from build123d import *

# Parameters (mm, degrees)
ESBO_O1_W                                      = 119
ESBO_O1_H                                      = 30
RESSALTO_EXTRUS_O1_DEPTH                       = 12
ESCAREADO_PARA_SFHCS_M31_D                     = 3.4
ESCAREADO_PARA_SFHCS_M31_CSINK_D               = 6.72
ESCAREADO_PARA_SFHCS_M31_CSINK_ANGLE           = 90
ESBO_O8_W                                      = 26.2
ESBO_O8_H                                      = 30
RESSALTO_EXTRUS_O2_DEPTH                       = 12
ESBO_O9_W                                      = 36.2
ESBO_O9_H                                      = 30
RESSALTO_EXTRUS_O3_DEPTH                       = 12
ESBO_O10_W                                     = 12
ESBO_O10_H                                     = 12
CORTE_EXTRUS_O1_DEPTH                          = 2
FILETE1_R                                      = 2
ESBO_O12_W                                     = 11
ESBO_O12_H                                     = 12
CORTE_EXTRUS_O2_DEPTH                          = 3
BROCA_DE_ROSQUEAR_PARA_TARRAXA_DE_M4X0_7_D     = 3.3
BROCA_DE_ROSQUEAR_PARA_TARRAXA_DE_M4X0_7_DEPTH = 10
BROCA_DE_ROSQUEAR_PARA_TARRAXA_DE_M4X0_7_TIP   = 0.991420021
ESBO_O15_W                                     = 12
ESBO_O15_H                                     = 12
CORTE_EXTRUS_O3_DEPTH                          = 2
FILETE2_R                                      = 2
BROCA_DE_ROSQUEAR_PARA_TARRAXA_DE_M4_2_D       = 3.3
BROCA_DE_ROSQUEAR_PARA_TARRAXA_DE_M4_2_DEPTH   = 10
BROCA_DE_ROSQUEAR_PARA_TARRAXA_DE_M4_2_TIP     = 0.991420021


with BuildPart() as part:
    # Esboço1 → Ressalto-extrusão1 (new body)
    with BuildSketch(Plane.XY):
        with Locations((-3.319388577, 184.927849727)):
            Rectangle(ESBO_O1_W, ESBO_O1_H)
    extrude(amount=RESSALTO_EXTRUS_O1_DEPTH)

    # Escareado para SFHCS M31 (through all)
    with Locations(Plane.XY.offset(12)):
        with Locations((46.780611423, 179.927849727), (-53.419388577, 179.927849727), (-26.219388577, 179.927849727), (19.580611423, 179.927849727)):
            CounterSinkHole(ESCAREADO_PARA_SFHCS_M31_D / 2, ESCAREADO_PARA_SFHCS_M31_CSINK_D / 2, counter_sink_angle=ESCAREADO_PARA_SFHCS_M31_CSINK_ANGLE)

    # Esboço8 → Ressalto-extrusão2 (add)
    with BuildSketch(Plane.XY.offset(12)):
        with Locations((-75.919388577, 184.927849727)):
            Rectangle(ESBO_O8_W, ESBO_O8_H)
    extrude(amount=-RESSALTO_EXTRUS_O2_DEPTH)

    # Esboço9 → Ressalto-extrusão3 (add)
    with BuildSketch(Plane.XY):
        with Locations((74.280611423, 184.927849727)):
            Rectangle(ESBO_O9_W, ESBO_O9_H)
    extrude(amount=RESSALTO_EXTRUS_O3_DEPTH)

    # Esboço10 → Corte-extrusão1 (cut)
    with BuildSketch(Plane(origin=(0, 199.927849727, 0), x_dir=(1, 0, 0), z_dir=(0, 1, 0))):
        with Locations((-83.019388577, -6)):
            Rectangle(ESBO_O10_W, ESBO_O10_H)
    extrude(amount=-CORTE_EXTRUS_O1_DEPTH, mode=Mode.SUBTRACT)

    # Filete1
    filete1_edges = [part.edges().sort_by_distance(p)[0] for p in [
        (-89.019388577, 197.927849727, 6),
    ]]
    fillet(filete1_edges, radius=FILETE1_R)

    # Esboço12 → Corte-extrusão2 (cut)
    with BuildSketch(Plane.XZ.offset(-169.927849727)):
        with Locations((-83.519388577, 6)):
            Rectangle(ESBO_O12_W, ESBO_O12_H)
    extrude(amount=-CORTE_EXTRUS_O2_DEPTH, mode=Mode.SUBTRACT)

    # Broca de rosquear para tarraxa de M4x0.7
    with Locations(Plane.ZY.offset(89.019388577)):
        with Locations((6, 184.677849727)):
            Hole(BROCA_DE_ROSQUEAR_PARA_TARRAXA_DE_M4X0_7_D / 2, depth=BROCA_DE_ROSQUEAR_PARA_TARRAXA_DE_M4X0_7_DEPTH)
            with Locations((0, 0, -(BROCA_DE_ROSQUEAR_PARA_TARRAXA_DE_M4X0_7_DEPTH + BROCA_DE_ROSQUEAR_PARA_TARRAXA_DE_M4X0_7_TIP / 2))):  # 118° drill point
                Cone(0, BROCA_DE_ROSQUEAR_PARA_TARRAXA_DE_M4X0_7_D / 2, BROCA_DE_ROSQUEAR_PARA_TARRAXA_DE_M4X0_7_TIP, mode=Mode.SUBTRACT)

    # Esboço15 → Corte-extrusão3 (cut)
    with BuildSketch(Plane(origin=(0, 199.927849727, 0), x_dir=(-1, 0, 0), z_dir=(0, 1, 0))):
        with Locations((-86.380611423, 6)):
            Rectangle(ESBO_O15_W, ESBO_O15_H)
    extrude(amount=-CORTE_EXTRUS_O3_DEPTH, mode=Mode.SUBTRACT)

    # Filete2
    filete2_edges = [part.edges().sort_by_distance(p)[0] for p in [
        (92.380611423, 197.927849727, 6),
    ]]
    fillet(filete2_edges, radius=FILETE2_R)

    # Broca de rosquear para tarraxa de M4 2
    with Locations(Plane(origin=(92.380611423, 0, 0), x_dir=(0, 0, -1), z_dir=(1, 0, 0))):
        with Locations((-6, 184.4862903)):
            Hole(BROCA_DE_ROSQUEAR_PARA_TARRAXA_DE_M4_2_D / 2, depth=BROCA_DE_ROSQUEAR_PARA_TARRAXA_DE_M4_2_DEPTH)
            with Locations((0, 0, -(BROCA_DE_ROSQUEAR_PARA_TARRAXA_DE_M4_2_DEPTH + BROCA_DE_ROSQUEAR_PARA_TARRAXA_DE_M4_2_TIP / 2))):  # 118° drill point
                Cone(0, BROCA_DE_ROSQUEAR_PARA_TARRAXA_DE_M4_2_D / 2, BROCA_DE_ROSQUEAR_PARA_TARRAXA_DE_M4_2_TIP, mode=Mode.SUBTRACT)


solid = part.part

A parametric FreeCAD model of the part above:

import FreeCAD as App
import Part
import Sketcher

V = App.Vector
Q = App.Units.Quantity


def edges_at(feature, points):
    """Names of the edges that pass closest to the given points."""
    edges = feature.Shape.Edges
    near = lambda p: min(range(len(edges)), key=lambda i: edges[i].distToShape(Part.Vertex(*p))[0])
    return sorted({f"Edge{near(p) + 1}" for p in points})

doc = App.newDocument("Part")
body = doc.addObject("PartDesign::Body", "Body")

sketch1 = doc.addObject("Sketcher::SketchObject", "Sketch")
body.addObject(sketch1)
sketch1.AttachmentSupport = (doc.XY_Plane, [""])
sketch1.MapMode = "FlatFace"
sketch1.addGeometry(Part.LineSegment(V(-62.819389, 199.92785, 0), V(-62.819389, 169.92785, 0)), False)
sketch1.addGeometry(Part.LineSegment(V(-62.819389, 169.92785, 0), V(56.180611, 169.92785, 0)), False)
sketch1.addGeometry(Part.LineSegment(V(56.180611, 169.92785, 0), V(56.180611, 199.92785, 0)), False)
sketch1.addGeometry(Part.LineSegment(V(56.180611, 199.92785, 0), V(-62.819389, 199.92785, 0)), False)
sketch1.addConstraint(Sketcher.Constraint("Coincident", 0, 2, 1, 1))
sketch1.addConstraint(Sketcher.Constraint("Coincident", 1, 2, 2, 1))
sketch1.addConstraint(Sketcher.Constraint("Coincident", 2, 2, 3, 1))
sketch1.addConstraint(Sketcher.Constraint("Coincident", 3, 2, 0, 1))
sketch1.addConstraint(Sketcher.Constraint("Vertical", 0))
sketch1.addConstraint(Sketcher.Constraint("Horizontal", 1))
sketch1.addConstraint(Sketcher.Constraint("Vertical", 2))
sketch1.addConstraint(Sketcher.Constraint("Horizontal", 3))
sketch1.addConstraint(Sketcher.Constraint("DistanceX", 1, 1, 1, 2, Q("119 mm")))
sketch1.addConstraint(Sketcher.Constraint("DistanceY", 0, 2, 0, 1, Q("30 mm")))
sketch1.addConstraint(Sketcher.Constraint("DistanceX", 0, 2, -1, 1, Q("62.819389 mm")))
sketch1.addConstraint(Sketcher.Constraint("DistanceY", -1, 1, 0, 2, Q("169.92785 mm")))
pad1 = doc.addObject("PartDesign::Pad", "Pad")
body.addObject(pad1)
pad1.Profile = sketch1
pad1.Length = 12

sketch2 = doc.addObject("Sketcher::SketchObject", "Sketch001")
body.addObject(sketch2)
sketch2.AttachmentSupport = (doc.XY_Plane, [""])
sketch2.MapMode = "FlatFace"
sketch2.AttachmentOffset = App.Placement(V(0, 0, 12), App.Rotation())
sketch2.addGeometry(Part.Circle(V(46.780611, 179.92785, 0), V(0, 0, 1), 1.7), False)
sketch2.addGeometry(Part.Circle(V(-53.419389, 179.92785, 0), V(0, 0, 1), 1.7), False)
sketch2.addGeometry(Part.Circle(V(-26.219389, 179.92785, 0), V(0, 0, 1), 1.7), False)
sketch2.addGeometry(Part.Circle(V(19.580611, 179.92785, 0), V(0, 0, 1), 1.7), False)
sketch2.addConstraint(Sketcher.Constraint("Equal", 0, 1))
sketch2.addConstraint(Sketcher.Constraint("Equal", 1, 2))
sketch2.addConstraint(Sketcher.Constraint("Equal", 2, 3))
sketch2.addConstraint(Sketcher.Constraint("Horizontal", 0, 3, 1, 3))
sketch2.addConstraint(Sketcher.Constraint("Horizontal", 1, 3, 2, 3))
sketch2.addConstraint(Sketcher.Constraint("Horizontal", 2, 3, 3, 3))
sketch2.addConstraint(Sketcher.Constraint("Diameter", 0, Q("3.4 mm")))
sketch2.addConstraint(Sketcher.Constraint("DistanceX", 2, 3, 0, 3, Q("73 mm")))
sketch2.addConstraint(Sketcher.Constraint("DistanceX", 1, 3, 3, 3, Q("73 mm")))
sketch2.addConstraint(Sketcher.Constraint("DistanceX", 1, 3, 0, 3, Q("100.2 mm")))
sketch2.addConstraint(Sketcher.Constraint("DistanceX", -1, 1, 0, 3, Q("46.780611 mm")))
sketch2.addConstraint(Sketcher.Constraint("DistanceY", -1, 1, 0, 3, Q("179.92785 mm")))
doc.recompute()
hole = doc.addObject("PartDesign::Hole", "Hole")
body.addObject(hole)
hole.Profile = sketch2
hole.ThreadType = "None"
hole.Diameter = 3.4
hole.DepthType = "ThroughAll"
hole.HoleCutType = "Countersink"
hole.HoleCutDiameter = 6.72
hole.HoleCutCountersinkAngle = 90

sketch3 = doc.addObject("Sketcher::SketchObject", "Sketch002")
body.addObject(sketch3)
sketch3.AttachmentSupport = (doc.XY_Plane, [""])
sketch3.MapMode = "FlatFace"
sketch3.AttachmentOffset = App.Placement(V(0, 0, 12), App.Rotation())
sketch3.addGeometry(Part.LineSegment(V(-89.019389, 199.92785, 0), V(-89.019389, 169.92785, 0)), False)
sketch3.addGeometry(Part.LineSegment(V(-89.019389, 169.92785, 0), V(-62.819389, 169.92785, 0)), False)
sketch3.addGeometry(Part.LineSegment(V(-62.819389, 169.92785, 0), V(-62.819389, 199.92785, 0)), False)
sketch3.addGeometry(Part.LineSegment(V(-62.819389, 199.92785, 0), V(-89.019389, 199.92785, 0)), False)
sketch3.addConstraint(Sketcher.Constraint("Coincident", 0, 2, 1, 1))
sketch3.addConstraint(Sketcher.Constraint("Coincident", 1, 2, 2, 1))
sketch3.addConstraint(Sketcher.Constraint("Coincident", 2, 2, 3, 1))
sketch3.addConstraint(Sketcher.Constraint("Coincident", 3, 2, 0, 1))
sketch3.addConstraint(Sketcher.Constraint("Vertical", 0))
sketch3.addConstraint(Sketcher.Constraint("Horizontal", 1))
sketch3.addConstraint(Sketcher.Constraint("Vertical", 2))
sketch3.addConstraint(Sketcher.Constraint("Horizontal", 3))
sketch3.addConstraint(Sketcher.Constraint("DistanceY", 0, 2, 0, 1, Q("30 mm")))
sketch3.addConstraint(Sketcher.Constraint("DistanceX", 1, 1, 1, 2, Q("26.2 mm")))
sketch3.addConstraint(Sketcher.Constraint("DistanceX", 0, 2, -1, 1, Q("89.019389 mm")))
sketch3.addConstraint(Sketcher.Constraint("DistanceY", -1, 1, 0, 2, Q("169.92785 mm")))
pad2 = doc.addObject("PartDesign::Pad", "Pad001")
body.addObject(pad2)
pad2.Profile = sketch3
pad2.Length = 12
pad2.Reversed = True

sketch4 = doc.addObject("Sketcher::SketchObject", "Sketch003")
body.addObject(sketch4)
sketch4.AttachmentSupport = (doc.XY_Plane, [""])
sketch4.MapMode = "FlatFace"
sketch4.addGeometry(Part.LineSegment(V(56.180611, 199.92785, 0), V(56.180611, 169.92785, 0)), False)
sketch4.addGeometry(Part.LineSegment(V(56.180611, 169.92785, 0), V(92.380611, 169.92785, 0)), False)
sketch4.addGeometry(Part.LineSegment(V(92.380611, 169.92785, 0), V(92.380611, 199.92785, 0)), False)
sketch4.addGeometry(Part.LineSegment(V(92.380611, 199.92785, 0), V(56.180611, 199.92785, 0)), False)
sketch4.addConstraint(Sketcher.Constraint("Coincident", 0, 2, 1, 1))
sketch4.addConstraint(Sketcher.Constraint("Coincident", 1, 2, 2, 1))
sketch4.addConstraint(Sketcher.Constraint("Coincident", 2, 2, 3, 1))
sketch4.addConstraint(Sketcher.Constraint("Coincident", 3, 2, 0, 1))
sketch4.addConstraint(Sketcher.Constraint("Vertical", 0))
sketch4.addConstraint(Sketcher.Constraint("Horizontal", 1))
sketch4.addConstraint(Sketcher.Constraint("Vertical", 2))
sketch4.addConstraint(Sketcher.Constraint("Horizontal", 3))
sketch4.addConstraint(Sketcher.Constraint("DistanceY", 0, 2, 0, 1, Q("30 mm")))
sketch4.addConstraint(Sketcher.Constraint("DistanceX", 1, 1, 1, 2, Q("36.2 mm")))
sketch4.addConstraint(Sketcher.Constraint("DistanceX", -1, 1, 0, 2, Q("56.180611 mm")))
sketch4.addConstraint(Sketcher.Constraint("DistanceY", -1, 1, 0, 2, Q("169.92785 mm")))
pad3 = doc.addObject("PartDesign::Pad", "Pad002")
body.addObject(pad3)
pad3.Profile = sketch4
pad3.Length = 12

sketch5 = doc.addObject("Sketcher::SketchObject", "Sketch004")
body.addObject(sketch5)
sketch5.AttachmentSupport = (doc.XZ_Plane, [""])
sketch5.MapMode = "FlatFace"
sketch5.AttachmentOffset = App.Placement(V(0, 0, -199.92785), App.Rotation())
sketch5.addGeometry(Part.LineSegment(V(-89.019389, 0, 0), V(-89.019389, 12, 0)), False)
sketch5.addGeometry(Part.LineSegment(V(-89.019389, 12, 0), V(-77.019389, 12, 0)), False)
sketch5.addGeometry(Part.LineSegment(V(-77.019389, 12, 0), V(-77.019389, 0, 0)), False)
sketch5.addGeometry(Part.LineSegment(V(-77.019389, 0, 0), V(-89.019389, 0, 0)), False)
sketch5.addConstraint(Sketcher.Constraint("Coincident", 0, 2, 1, 1))
sketch5.addConstraint(Sketcher.Constraint("Coincident", 1, 2, 2, 1))
sketch5.addConstraint(Sketcher.Constraint("Coincident", 2, 2, 3, 1))
sketch5.addConstraint(Sketcher.Constraint("Coincident", 3, 2, 0, 1))
sketch5.addConstraint(Sketcher.Constraint("Vertical", 0))
sketch5.addConstraint(Sketcher.Constraint("Horizontal", 1))
sketch5.addConstraint(Sketcher.Constraint("Vertical", 2))
sketch5.addConstraint(Sketcher.Constraint("Horizontal", 3))
sketch5.addConstraint(Sketcher.Constraint("PointOnObject", 2, 2, -1))
sketch5.addConstraint(Sketcher.Constraint("Equal", 3, 0))
sketch5.addConstraint(Sketcher.Constraint("DistanceX", 1, 1, 1, 2, Q("12 mm")))
sketch5.addConstraint(Sketcher.Constraint("DistanceX", 0, 2, -1, 1, Q("89.019389 mm")))
pocket1 = doc.addObject("PartDesign::Pocket", "Pocket")
body.addObject(pocket1)
pocket1.Profile = sketch5
pocket1.Length = 2
pocket1.Reversed = True
doc.recompute()

fillet = doc.addObject("PartDesign::Fillet", "Fillet")
body.addObject(fillet)
fillet.Base = (pocket1, edges_at(pocket1, [(-89.019, 197.928, 6)]))
fillet.Radius = 2

sketch6 = doc.addObject("Sketcher::SketchObject", "Sketch005")
body.addObject(sketch6)
sketch6.AttachmentSupport = (doc.XZ_Plane, [""])
sketch6.MapMode = "FlatFace"
sketch6.AttachmentOffset = App.Placement(V(0, 0, -169.92785), App.Rotation())
sketch6.addGeometry(Part.LineSegment(V(-89.019389, 12, 0), V(-89.019389, 0, 0)), False)
sketch6.addGeometry(Part.LineSegment(V(-89.019389, 0, 0), V(-78.019389, 0, 0)), False)
sketch6.addGeometry(Part.LineSegment(V(-78.019389, 0, 0), V(-78.019389, 12, 0)), False)
sketch6.addGeometry(Part.LineSegment(V(-78.019389, 12, 0), V(-89.019389, 12, 0)), False)
sketch6.addConstraint(Sketcher.Constraint("Coincident", 0, 2, 1, 1))
sketch6.addConstraint(Sketcher.Constraint("Coincident", 1, 2, 2, 1))
sketch6.addConstraint(Sketcher.Constraint("Coincident", 2, 2, 3, 1))
sketch6.addConstraint(Sketcher.Constraint("Coincident", 3, 2, 0, 1))
sketch6.addConstraint(Sketcher.Constraint("Vertical", 0))
sketch6.addConstraint(Sketcher.Constraint("Horizontal", 1))
sketch6.addConstraint(Sketcher.Constraint("Vertical", 2))
sketch6.addConstraint(Sketcher.Constraint("Horizontal", 3))
sketch6.addConstraint(Sketcher.Constraint("PointOnObject", 0, 2, -1))
sketch6.addConstraint(Sketcher.Constraint("DistanceX", 1, 1, 1, 2, Q("11 mm")))
sketch6.addConstraint(Sketcher.Constraint("DistanceY", 0, 2, 0, 1, Q("12 mm")))
sketch6.addConstraint(Sketcher.Constraint("DistanceX", 0, 2, -1, 1, Q("89.019389 mm")))
pocket2 = doc.addObject("PartDesign::Pocket", "Pocket001")
body.addObject(pocket2)
pocket2.Profile = sketch6
pocket2.Length = 3

sketch7 = doc.addObject("Sketcher::SketchObject", "Sketch006")
body.addObject(sketch7)
sketch7.AttachmentSupport = (doc.YZ_Plane, [""])
sketch7.MapMode = "FlatFace"
sketch7.AttachmentOffset = App.Placement(V(0, 0, -89.019389), App.Rotation())
sketch7.addGeometry(Part.Circle(V(184.67785, 6, 0), V(0, 0, 1), 1.65), False)
sketch7.addConstraint(Sketcher.Constraint("Diameter", 0, Q("3.3 mm")))
sketch7.addConstraint(Sketcher.Constraint("DistanceY", -1, 1, 0, 3, Q("6 mm")))
sketch7.addConstraint(Sketcher.Constraint("DistanceX", -1, 1, 0, 3, Q("184.67785 mm")))
doc.recompute()
hole2 = doc.addObject("PartDesign::Hole", "Hole001")
body.addObject(hole2)
hole2.Profile = sketch7
hole2.ThreadType = "None"
hole2.Diameter = 3.3
hole2.DepthType = "Dimension"
hole2.Depth = 10
hole2.DrillPoint = "Angled"
hole2.DrillPointAngle = 118
hole2.Reversed = True

sketch8 = doc.addObject("Sketcher::SketchObject", "Sketch007")
body.addObject(sketch8)
sketch8.AttachmentSupport = (doc.XZ_Plane, [""])
sketch8.MapMode = "FlatFace"
sketch8.AttachmentOffset = App.Placement(V(0, 0, -199.92785), App.Rotation())
sketch8.addGeometry(Part.LineSegment(V(92.380611, 12, 0), V(92.380611, 0, 0)), False)
sketch8.addGeometry(Part.LineSegment(V(92.380611, 0, 0), V(80.380611, 0, 0)), False)
sketch8.addGeometry(Part.LineSegment(V(80.380611, 0, 0), V(80.380611, 12, 0)), False)
sketch8.addGeometry(Part.LineSegment(V(80.380611, 12, 0), V(92.380611, 12, 0)), False)
sketch8.addConstraint(Sketcher.Constraint("Coincident", 0, 2, 1, 1))
sketch8.addConstraint(Sketcher.Constraint("Coincident", 1, 2, 2, 1))
sketch8.addConstraint(Sketcher.Constraint("Coincident", 2, 2, 3, 1))
sketch8.addConstraint(Sketcher.Constraint("Coincident", 3, 2, 0, 1))
sketch8.addConstraint(Sketcher.Constraint("Vertical", 0))
sketch8.addConstraint(Sketcher.Constraint("Horizontal", 1))
sketch8.addConstraint(Sketcher.Constraint("Vertical", 2))
sketch8.addConstraint(Sketcher.Constraint("Horizontal", 3))
sketch8.addConstraint(Sketcher.Constraint("PointOnObject", 0, 2, -1))
sketch8.addConstraint(Sketcher.Constraint("Equal", 3, 0))
sketch8.addConstraint(Sketcher.Constraint("DistanceX", 1, 2, 1, 1, Q("12 mm")))
sketch8.addConstraint(Sketcher.Constraint("DistanceX", -1, 1, 0, 2, Q("92.380611 mm")))
pocket3 = doc.addObject("PartDesign::Pocket", "Pocket002")
body.addObject(pocket3)
pocket3.Profile = sketch8
pocket3.Length = 2
pocket3.Reversed = True
doc.recompute()

fillet2 = doc.addObject("PartDesign::Fillet", "Fillet001")
body.addObject(fillet2)
fillet2.Base = (pocket3, edges_at(pocket3, [(92.381, 197.928, 6)]))
fillet2.Radius = 2

sketch9 = doc.addObject("Sketcher::SketchObject", "Sketch008")
body.addObject(sketch9)
sketch9.AttachmentSupport = (doc.YZ_Plane, [""])
sketch9.MapMode = "FlatFace"
sketch9.AttachmentOffset = App.Placement(V(0, 0, 92.380611), App.Rotation())
sketch9.addGeometry(Part.Circle(V(184.48629, 6, 0), V(0, 0, 1), 1.65), False)
sketch9.addConstraint(Sketcher.Constraint("Diameter", 0, Q("3.3 mm")))
sketch9.addConstraint(Sketcher.Constraint("DistanceY", -1, 1, 0, 3, Q("6 mm")))
sketch9.addConstraint(Sketcher.Constraint("DistanceX", -1, 1, 0, 3, Q("184.48629 mm")))
doc.recompute()
hole3 = doc.addObject("PartDesign::Hole", "Hole002")
body.addObject(hole3)
hole3.Profile = sketch9
hole3.ThreadType = "None"
hole3.Diameter = 3.3
hole3.DepthType = "Dimension"
hole3.Depth = 10
hole3.DrillPoint = "Angled"
hole3.DrillPointAngle = 118

doc.recompute()
